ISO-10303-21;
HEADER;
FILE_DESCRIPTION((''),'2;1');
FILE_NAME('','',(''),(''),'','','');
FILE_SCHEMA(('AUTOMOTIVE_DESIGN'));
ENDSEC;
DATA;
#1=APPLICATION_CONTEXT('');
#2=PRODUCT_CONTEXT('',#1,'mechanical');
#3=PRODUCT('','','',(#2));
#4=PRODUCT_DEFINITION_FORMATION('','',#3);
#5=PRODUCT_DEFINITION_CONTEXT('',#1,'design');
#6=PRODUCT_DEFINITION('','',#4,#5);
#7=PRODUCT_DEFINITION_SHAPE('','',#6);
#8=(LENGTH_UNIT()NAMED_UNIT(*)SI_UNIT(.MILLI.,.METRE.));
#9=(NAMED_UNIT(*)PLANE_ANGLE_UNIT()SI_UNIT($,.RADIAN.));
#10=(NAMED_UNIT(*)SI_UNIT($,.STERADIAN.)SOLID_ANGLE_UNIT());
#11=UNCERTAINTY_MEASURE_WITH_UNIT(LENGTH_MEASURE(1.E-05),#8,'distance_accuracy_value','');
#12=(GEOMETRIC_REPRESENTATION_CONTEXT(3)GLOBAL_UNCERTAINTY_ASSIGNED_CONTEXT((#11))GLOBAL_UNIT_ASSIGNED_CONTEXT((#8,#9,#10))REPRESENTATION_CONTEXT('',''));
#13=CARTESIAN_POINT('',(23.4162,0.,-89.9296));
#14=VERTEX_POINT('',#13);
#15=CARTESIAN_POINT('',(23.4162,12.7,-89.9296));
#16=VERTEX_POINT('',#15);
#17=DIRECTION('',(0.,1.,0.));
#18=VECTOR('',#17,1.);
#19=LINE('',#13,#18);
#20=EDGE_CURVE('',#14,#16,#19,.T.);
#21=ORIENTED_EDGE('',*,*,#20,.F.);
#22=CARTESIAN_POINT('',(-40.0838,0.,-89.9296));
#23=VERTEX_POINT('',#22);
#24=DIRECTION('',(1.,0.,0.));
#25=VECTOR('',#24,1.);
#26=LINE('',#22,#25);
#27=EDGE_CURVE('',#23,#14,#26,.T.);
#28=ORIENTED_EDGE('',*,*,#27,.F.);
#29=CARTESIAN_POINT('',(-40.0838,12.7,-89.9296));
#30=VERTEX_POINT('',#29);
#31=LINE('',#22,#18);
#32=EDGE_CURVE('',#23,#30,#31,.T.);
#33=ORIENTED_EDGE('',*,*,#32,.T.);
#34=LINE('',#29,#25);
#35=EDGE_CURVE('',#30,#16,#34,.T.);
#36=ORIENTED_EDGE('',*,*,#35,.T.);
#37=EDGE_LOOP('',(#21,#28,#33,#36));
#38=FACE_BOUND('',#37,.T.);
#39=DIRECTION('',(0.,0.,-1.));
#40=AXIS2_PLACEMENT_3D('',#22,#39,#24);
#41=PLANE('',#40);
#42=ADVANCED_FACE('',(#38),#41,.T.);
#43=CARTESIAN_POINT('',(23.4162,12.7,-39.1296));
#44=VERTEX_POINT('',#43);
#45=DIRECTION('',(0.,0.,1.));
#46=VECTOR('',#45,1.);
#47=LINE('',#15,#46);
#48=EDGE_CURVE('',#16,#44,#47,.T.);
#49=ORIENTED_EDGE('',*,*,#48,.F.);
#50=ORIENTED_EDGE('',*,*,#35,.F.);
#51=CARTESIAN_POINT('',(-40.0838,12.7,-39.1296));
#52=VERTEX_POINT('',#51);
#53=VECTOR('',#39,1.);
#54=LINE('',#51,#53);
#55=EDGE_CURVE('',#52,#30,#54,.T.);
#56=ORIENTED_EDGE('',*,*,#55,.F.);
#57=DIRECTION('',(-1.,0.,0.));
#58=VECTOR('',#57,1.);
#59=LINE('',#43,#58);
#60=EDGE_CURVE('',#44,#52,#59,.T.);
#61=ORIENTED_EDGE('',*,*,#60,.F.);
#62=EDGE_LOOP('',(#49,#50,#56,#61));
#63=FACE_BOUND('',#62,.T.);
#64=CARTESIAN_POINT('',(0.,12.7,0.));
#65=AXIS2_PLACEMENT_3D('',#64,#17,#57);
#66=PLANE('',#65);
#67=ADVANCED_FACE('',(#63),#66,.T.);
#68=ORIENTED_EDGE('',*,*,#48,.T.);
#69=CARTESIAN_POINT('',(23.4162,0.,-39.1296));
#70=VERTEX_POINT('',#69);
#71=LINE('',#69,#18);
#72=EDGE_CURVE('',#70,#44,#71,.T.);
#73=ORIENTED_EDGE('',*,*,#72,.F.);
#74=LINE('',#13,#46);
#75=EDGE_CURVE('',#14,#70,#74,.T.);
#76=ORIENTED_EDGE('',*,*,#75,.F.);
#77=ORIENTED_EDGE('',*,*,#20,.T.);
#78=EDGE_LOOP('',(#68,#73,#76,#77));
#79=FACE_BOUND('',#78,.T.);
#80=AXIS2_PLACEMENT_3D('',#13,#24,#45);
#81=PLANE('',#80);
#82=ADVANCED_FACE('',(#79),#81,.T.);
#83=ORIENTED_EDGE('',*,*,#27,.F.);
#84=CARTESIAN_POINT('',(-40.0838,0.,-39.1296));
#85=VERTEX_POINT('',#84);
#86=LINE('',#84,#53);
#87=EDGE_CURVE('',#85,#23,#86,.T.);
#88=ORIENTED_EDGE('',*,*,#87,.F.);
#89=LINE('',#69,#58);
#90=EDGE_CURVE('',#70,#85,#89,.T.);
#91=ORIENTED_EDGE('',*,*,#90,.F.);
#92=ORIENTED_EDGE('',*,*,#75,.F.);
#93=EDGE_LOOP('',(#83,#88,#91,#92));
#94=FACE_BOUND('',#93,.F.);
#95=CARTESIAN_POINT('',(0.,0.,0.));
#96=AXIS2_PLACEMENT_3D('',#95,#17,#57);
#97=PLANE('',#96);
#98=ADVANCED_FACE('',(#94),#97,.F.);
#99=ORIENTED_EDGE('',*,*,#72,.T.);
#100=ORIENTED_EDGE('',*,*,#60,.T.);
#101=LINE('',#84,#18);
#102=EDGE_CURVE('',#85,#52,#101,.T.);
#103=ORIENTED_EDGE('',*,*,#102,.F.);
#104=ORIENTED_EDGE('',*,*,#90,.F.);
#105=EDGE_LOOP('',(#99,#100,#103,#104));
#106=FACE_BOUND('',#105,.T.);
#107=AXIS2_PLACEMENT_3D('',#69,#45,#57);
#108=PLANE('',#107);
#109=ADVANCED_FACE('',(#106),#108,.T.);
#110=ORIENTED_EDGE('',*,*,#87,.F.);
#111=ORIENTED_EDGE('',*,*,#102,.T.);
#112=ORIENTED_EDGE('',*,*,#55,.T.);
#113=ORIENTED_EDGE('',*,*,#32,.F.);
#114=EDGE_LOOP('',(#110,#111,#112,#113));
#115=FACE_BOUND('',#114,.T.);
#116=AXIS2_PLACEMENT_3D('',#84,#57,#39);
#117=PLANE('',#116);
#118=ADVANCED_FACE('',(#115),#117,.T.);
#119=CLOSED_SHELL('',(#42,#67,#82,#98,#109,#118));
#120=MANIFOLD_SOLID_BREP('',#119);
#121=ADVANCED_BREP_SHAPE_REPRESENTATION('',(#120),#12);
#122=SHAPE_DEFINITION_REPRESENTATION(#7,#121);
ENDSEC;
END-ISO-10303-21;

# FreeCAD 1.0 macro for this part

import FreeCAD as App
import Part
import Sketcher

V = App.Vector
Q = App.Units.Quantity


def add_polygon(sketch, points):
    """Adds a closed chain of lines whose ends are joined by coincident constraints."""
    first, n = sketch.GeometryCount, len(points)
    for a, b in zip(points, points[1:] + points[:1]):
        sketch.addGeometry(Part.LineSegment(App.Vector(*a, 0), App.Vector(*b, 0)), False)
    for i in range(n):
        sketch.addConstraint(Sketcher.Constraint("Coincident", first + i, 2, first + (i + 1) % n, 1))

doc = App.newDocument("Part")
body = doc.addObject("PartDesign::Body", "Body")

sketch1 = body.newObject("Sketcher::SketchObject", "Sketch")
sketch1.AttachmentSupport = (doc.getObject("XZ_Plane"), [""])
sketch1.MapMode = "FlatFace"
add_polygon(sketch1, [(-40, -39), (23, -39), (23, -90), (-40, -90)])
sketch1.addConstraint(Sketcher.Constraint("Horizontal", 0))
sketch1.addConstraint(Sketcher.Constraint("Vertical", 1))
sketch1.addConstraint(Sketcher.Constraint("Horizontal", 2))
sketch1.addConstraint(Sketcher.Constraint("Vertical", 3))
sketch1.addConstraint(Sketcher.Constraint("DistanceY", 1, 2, 1, 1, Q("2 in")))
sketch1.addConstraint(Sketcher.Constraint("DistanceX", 0, 1, 0, 2, Q("2.5 in")))
sketch1.addConstraint(Sketcher.Constraint("DistanceX", -1, 1, 0, 2, Q("0.9219 in")))
sketch1.addConstraint(Sketcher.Constraint("DistanceY", 0, 2, -1, 1, Q("39.1296 mm")))
pad1 = body.newObject("PartDesign::Pad", "Pad")
pad1.Profile = sketch1
pad1.Length = Q("0.5 in")
pad1.Reversed = True

doc.recompute()
